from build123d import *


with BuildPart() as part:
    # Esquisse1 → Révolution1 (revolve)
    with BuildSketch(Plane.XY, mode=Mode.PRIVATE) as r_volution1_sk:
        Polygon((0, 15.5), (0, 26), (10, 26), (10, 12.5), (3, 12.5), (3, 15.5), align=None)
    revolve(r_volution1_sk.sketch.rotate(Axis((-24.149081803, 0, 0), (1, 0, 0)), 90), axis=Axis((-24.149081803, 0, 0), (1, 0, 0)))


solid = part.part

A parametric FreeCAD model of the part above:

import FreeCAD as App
import Part
import Sketcher

V = App.Vector


def add_polygon(sketch, points):
    """Adds a closed chain of lines whose ends are joined by coincident constraints."""
    first, n = sketch.GeometryCount, len(points)
    for a, b in zip(points, points[1:] + points[:1]):
        sketch.addGeometry(Part.LineSegment(App.Vector(*a, 0), App.Vector(*b, 0)), False)
    for i in range(n):
        sketch.addConstraint(Sketcher.Constraint("Coincident", first + i, 2, first + (i + 1) % n, 1))

doc = App.newDocument("Part")
body = doc.addObject("PartDesign::Body", "Body")

# Sketch on XY plane
sketch1 = body.newObject("Sketcher::SketchObject", "Sketch")
sketch1.AttachmentSupport = (doc.getObject("XY_Plane"), [""])
sketch1.MapMode = "FlatFace"
add_polygon(sketch1, [(0, 26), (0, 15.5), (3, 15.5), (3, 12.5), (10, 12.5), (10, 26)])  # lines 0-5
sketch1.addConstraint([
    Sketcher.Constraint("Vertical", 0),
    Sketcher.Constraint("Horizontal", 1),
    Sketcher.Constraint("Vertical", 2),
    Sketcher.Constraint("Horizontal", 3),
    Sketcher.Constraint("Vertical", 4),
    Sketcher.Constraint("Horizontal", 5),
    Sketcher.Constraint("PointOnObject", 0, 2, -2),
    Sketcher.Constraint("Equal", 1, 2),
    Sketcher.Constraint("DistanceX", 1, 1, 1, 2, 3.0),
    Sketcher.Constraint("DistanceX", 3, 1, 3, 2, 7.0),
    Sketcher.Constraint("DistanceY", 0, 2, 0, 1, 10.5),
    Sketcher.Constraint("DistanceY", -1, 1, 4, 2, 26.0),
])
revolution = body.newObject("PartDesign::Revolution", "Revolution")
revolution.Profile = sketch1
revolution.ReferenceAxis = (sketch1, ["H_Axis"])
revolution.Angle = 360

doc.recompute()
